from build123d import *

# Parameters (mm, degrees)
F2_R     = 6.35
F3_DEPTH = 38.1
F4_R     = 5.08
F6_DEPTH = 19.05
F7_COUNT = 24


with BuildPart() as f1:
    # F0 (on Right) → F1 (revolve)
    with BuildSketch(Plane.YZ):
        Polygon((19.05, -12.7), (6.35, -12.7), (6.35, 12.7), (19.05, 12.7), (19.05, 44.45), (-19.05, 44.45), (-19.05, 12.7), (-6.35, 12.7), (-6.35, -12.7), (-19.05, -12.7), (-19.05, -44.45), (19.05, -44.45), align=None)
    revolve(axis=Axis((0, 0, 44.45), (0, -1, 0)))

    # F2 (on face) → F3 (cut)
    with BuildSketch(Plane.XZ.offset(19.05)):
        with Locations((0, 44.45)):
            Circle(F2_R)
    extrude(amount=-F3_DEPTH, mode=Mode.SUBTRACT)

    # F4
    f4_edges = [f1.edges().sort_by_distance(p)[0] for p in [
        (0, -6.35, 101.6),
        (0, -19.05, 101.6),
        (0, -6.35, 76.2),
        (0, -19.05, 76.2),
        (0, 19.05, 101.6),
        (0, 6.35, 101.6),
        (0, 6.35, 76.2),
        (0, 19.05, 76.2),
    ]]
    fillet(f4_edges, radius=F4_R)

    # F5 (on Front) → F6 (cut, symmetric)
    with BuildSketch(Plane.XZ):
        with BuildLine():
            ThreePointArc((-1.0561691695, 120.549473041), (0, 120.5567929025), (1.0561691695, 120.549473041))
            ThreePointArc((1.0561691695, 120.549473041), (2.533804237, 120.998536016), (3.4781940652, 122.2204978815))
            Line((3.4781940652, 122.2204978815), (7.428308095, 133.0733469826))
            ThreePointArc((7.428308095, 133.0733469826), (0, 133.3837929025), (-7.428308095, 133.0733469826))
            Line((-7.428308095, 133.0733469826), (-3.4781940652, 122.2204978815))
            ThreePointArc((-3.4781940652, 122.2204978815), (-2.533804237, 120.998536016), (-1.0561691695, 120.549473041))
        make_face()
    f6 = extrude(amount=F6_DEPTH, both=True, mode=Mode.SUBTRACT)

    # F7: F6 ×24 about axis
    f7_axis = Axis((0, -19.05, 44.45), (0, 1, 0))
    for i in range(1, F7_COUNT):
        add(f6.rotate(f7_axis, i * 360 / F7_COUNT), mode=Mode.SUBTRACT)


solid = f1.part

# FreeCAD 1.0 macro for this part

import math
import FreeCAD as App
import Part
import Sketcher
Q = App.Units.Quantity


def edges_at(feature, points):
    """Names of the edges that pass closest to the given points."""
    edges = feature.Shape.Edges
    near = lambda p: min(range(len(edges)), key=lambda i: edges[i].distToShape(Part.Vertex(*p))[0])
    return sorted({f"Edge{near(p) + 1}" for p in points})


def add_polygon(sketch, points):
    """Adds a closed chain of lines whose ends are joined by coincident constraints."""
    first, n = sketch.GeometryCount, len(points)
    for a, b in zip(points, points[1:] + points[:1]):
        sketch.addGeometry(Part.LineSegment(App.Vector(*a, 0), App.Vector(*b, 0)), False)
    for i in range(n):
        sketch.addConstraint(Sketcher.Constraint("Coincident", first + i, 2, first + (i + 1) % n, 1))

doc = App.newDocument("Part")
body = doc.addObject("PartDesign::Body", "Body")

# Sketch on YZ plane
sketch1 = body.newObject("Sketcher::SketchObject", "Sketch")
sketch1.AttachmentSupport = (doc.getObject("YZ_Plane"), [""])
sketch1.MapMode = "FlatFace"
add_polygon(sketch1, [(19.05, -12.7), (6.35, -12.7), (6.35, 12.7), (19.05, 12.7), (19.05, 44.45), (-19.05, 44.45), (-19.05, 12.7), (-6.35, 12.7), (-6.35, -12.7), (-19.05, -12.7), (-19.05, -44.45), (19.05, -44.45)])  # lines 0-11
sketch1.addGeometry(Part.LineSegment(App.Vector(19.05, 44.45, 0), App.Vector(-19.05, 44.45, 0)), True)  # axis
sketch1.addConstraint(Sketcher.Constraint("Horizontal", 0))
sketch1.addConstraint(Sketcher.Constraint("Vertical", 1))
sketch1.addConstraint(Sketcher.Constraint("Horizontal", 2))
sketch1.addConstraint(Sketcher.Constraint("Vertical", 3))
sketch1.addConstraint(Sketcher.Constraint("Horizontal", 4))
sketch1.addConstraint(Sketcher.Constraint("Vertical", 5))
sketch1.addConstraint(Sketcher.Constraint("Horizontal", 6))
sketch1.addConstraint(Sketcher.Constraint("Vertical", 7))
sketch1.addConstraint(Sketcher.Constraint("Horizontal", 8))
sketch1.addConstraint(Sketcher.Constraint("Vertical", 9))
sketch1.addConstraint(Sketcher.Constraint("Horizontal", 10))
sketch1.addConstraint(Sketcher.Constraint("Vertical", 11))
sketch1.addConstraint(Sketcher.Constraint("Horizontal", 12))
sketch1.addConstraint(Sketcher.Constraint("Coincident", 12, 1, 3, 2))
sketch1.addConstraint(Sketcher.Constraint("Symmetric", 0, 2, 6, 2, -1, 1))
sketch1.addConstraint(Sketcher.Constraint("Symmetric", 2, 2, 8, 2, -1, 1))
sketch1.addConstraint(Sketcher.Constraint("Symmetric", 4, 2, 10, 2, -1, 1))
sketch1.addConstraint(Sketcher.Constraint("Symmetric", 2, 2, 5, 2, -2))
sketch1.addConstraint(Sketcher.Constraint("Vertical", 9, 2, 12, 2))
sketch1.addConstraint(Sketcher.Constraint("DistanceY", 1, 1, 1, 2, Q("1 in")))
sketch1.addConstraint(Sketcher.Constraint("DistanceX", 0, 2, 0, 1, Q("0.5 in")))
sketch1.addConstraint(Sketcher.Constraint("DistanceX", 4, 2, 4, 1, Q("1.5 in")))
sketch1.addConstraint(Sketcher.Constraint("DistanceY", 3, 1, 3, 2, Q("1.25 in")))
revolution = body.newObject("PartDesign::Revolution", "Revolution")
revolution.Profile = sketch1
revolution.ReferenceAxis = (sketch1, ["Axis0"])
revolution.Angle = 360

# Sketch on XZ plane
sketch2 = body.newObject("Sketcher::SketchObject", "Sketch001")
sketch2.AttachmentSupport = (doc.getObject("XZ_Plane"), [""])
sketch2.MapMode = "FlatFace"
sketch2.AttachmentOffset = App.Placement(App.Vector(0, 0, 0.75 * 25.4), App.Rotation())
sketch2.addGeometry(Part.Circle(App.Vector(0, 44.45, 0), App.Vector(0, 0, 1), 6.35), False)
sketch2.addConstraint(Sketcher.Constraint("PointOnObject", 0, 3, -2))
sketch2.addConstraint(Sketcher.Constraint("Diameter", 0, Q("0.5 in")))
sketch2.addConstraint(Sketcher.Constraint("DistanceY", -1, 1, 0, 3, Q("1.75 in")))
pocket1 = body.newObject("PartDesign::Pocket", "Pocket")
pocket1.Profile = sketch2
pocket1.Length = Q("1.5 in")
doc.recompute()

fillet = body.newObject("PartDesign::Fillet", "Fillet")
fillet.Base = (pocket1, edges_at(pocket1, [
    (0, -6.35, 101.6),
    (0, -19.05, 101.6),
    (0, -6.35, 76.2),
    (0, -19.05, 76.2),
    (0, 19.05, 101.6),
    (0, 6.35, 101.6),
    (0, 6.35, 76.2),
    (0, 19.05, 76.2),
]))
fillet.Radius = Q("0.2 in")

# Sketch on XZ plane
sketch3 = body.newObject("Sketcher::SketchObject", "Sketch002")
sketch3.AttachmentSupport = (doc.getObject("XZ_Plane"), [""])
sketch3.MapMode = "FlatFace"
sketch3.addGeometry(Part.ArcOfCircle(Part.Circle(App.Vector(0, 44.356793, 0), App.Vector(0, 0, 1), 76.2), math.radians(89.205827), math.radians(90.794173)), False)
sketch3.addGeometry(Part.ArcOfCircle(Part.Circle(App.Vector(1.091375, 123.089229, 0), App.Vector(0, 0, 1), 2.54), math.radians(-90.794173), math.radians(-20)), False)
sketch3.addGeometry(Part.LineSegment(App.Vector(3.478194, 122.220498, 0), App.Vector(7.428308, 133.073347, 0)), False)
sketch3.addGeometry(Part.ArcOfCircle(Part.Circle(App.Vector(0, 44.356793, 0), App.Vector(0, 0, 1), 89.027), math.radians(85.213743), math.radians(94.786257)), False)
sketch3.addGeometry(Part.LineSegment(App.Vector(-7.428308, 133.073347, 0), App.Vector(-3.478194, 122.220498, 0)), False)
sketch3.addGeometry(Part.ArcOfCircle(Part.Circle(App.Vector(-1.091375, 123.089229, 0), App.Vector(0, 0, 1), 2.54), math.radians(-160), math.radians(-89.205827)), False)
sketch3.addConstraint(Sketcher.Constraint("Tangent", 0, 1, 1, 1))
sketch3.addConstraint(Sketcher.Constraint("Tangent", 1, 2, 2, 1))
sketch3.addConstraint(Sketcher.Constraint("Coincident", 2, 2, 3, 1))
sketch3.addConstraint(Sketcher.Constraint("Coincident", 3, 2, 4, 1))
sketch3.addConstraint(Sketcher.Constraint("Tangent", 4, 2, 5, 1))
sketch3.addConstraint(Sketcher.Constraint("Tangent", 5, 2, 0, 2))
sketch3.addConstraint(Sketcher.Constraint("Coincident", 3, 3, 0, 3))
sketch3.addConstraint(Sketcher.Constraint("Equal", 1, 5))
sketch3.addConstraint(Sketcher.Constraint("Symmetric", 1, 3, 5, 3, -2))
sketch3.addConstraint(Sketcher.Constraint("Horizontal", 2, 2, 3, 2))
sketch3.addConstraint(Sketcher.Constraint("Radius", 0, Q("3 in")))
sketch3.addConstraint(Sketcher.Constraint("Radius", 1, Q("0.1 in")))
sketch3.addConstraint(Sketcher.Constraint("Angle", 2, Q("70 deg")))
sketch3.addConstraint(Sketcher.Constraint("Radius", 3, Q("3.505 in")))
sketch3.addConstraint(Sketcher.Constraint("DistanceY", 3, 3, 1, 2, Q("3.0655002 in")))
sketch3.addConstraint(Sketcher.Constraint("DistanceY", -1, 1, 1, 3, 123.089229))
pocket2 = body.newObject("PartDesign::Pocket", "Pocket001")
pocket2.Profile = sketch3
pocket2.Length = Q("1.5 in")
pocket2.Midplane = True
doc.recompute()

datumline = body.newObject("PartDesign::Line", "DatumLine")
datumline.Placement = App.Placement(App.Vector(0, 0, 44.45), App.Rotation(App.Vector(0, 0, 1), App.Vector(0, 1, 0)))
polarpattern = body.newObject("PartDesign::PolarPattern", "PolarPattern")
polarpattern.Originals = [pocket2]
polarpattern.Axis = (datumline, [""])
polarpattern.Angle = 360
polarpattern.Occurrences = 24
body.Tip = polarpattern

doc.recompute()
